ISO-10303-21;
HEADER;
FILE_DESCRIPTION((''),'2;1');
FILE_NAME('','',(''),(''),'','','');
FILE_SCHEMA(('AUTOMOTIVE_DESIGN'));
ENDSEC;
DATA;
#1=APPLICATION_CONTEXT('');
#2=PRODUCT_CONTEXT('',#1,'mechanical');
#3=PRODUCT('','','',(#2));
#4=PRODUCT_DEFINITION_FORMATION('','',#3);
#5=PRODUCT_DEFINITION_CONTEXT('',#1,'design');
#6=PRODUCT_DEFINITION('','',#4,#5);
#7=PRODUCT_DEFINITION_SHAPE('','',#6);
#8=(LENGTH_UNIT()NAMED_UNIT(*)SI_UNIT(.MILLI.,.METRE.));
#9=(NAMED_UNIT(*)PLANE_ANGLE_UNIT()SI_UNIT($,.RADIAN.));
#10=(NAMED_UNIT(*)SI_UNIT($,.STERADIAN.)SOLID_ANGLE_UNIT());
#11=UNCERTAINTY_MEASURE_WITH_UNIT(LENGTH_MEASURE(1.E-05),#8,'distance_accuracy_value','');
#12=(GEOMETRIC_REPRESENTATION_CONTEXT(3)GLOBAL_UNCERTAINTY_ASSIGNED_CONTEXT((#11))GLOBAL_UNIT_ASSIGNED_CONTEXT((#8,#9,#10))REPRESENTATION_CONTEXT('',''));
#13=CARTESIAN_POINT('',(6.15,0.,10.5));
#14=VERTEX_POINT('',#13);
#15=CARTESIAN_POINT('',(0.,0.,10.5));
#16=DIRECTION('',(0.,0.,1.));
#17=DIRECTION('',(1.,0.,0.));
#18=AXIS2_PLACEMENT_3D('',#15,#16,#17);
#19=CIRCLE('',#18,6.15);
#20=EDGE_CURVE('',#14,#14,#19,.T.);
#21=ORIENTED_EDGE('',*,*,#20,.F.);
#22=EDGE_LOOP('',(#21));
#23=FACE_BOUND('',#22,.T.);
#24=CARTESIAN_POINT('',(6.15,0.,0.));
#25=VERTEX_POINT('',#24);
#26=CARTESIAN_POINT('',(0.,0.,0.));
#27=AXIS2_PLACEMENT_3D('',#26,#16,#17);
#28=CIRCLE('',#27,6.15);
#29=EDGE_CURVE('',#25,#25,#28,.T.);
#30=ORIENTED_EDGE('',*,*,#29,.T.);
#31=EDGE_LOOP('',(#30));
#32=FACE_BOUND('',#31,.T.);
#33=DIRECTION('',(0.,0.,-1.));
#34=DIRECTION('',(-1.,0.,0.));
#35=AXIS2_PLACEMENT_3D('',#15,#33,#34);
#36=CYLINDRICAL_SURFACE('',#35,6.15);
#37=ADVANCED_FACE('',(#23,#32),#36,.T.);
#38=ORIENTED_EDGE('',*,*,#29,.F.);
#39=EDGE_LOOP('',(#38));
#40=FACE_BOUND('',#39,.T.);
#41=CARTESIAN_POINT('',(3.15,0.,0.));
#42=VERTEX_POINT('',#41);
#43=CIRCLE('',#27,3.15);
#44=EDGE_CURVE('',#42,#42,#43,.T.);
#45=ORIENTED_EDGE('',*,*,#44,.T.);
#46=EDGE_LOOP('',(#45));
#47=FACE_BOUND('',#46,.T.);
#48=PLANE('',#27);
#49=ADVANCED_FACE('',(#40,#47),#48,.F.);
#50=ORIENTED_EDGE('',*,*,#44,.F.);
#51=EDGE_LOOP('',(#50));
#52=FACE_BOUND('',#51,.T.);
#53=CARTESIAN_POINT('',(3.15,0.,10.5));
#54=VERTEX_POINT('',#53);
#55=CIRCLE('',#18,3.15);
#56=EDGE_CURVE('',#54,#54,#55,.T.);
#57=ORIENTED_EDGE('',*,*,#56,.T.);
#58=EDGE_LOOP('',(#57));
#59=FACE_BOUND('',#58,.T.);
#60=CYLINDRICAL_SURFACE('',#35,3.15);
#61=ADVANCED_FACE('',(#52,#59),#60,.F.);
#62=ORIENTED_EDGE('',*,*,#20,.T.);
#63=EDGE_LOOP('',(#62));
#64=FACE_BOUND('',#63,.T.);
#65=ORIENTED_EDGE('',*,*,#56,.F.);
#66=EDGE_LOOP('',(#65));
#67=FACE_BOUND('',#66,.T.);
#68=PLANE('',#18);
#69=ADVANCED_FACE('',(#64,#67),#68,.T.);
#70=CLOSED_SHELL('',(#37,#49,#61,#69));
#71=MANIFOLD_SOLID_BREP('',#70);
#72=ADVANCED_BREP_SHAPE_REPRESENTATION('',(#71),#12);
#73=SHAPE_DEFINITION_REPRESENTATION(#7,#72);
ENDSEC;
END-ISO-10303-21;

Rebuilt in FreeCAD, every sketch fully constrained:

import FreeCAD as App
import Part
import Sketcher
from FreeCAD import Vector

doc = App.newDocument("Part")
params = doc.addObject("Spreadsheet::Sheet", "Params")
for row, (alias, value) in enumerate([
    ("sketch1_diameter", "12.3 mm"),
    ("sketch1_diameter2", "6.3 mm"),
    ("pad1_length", "10.5 mm"),
], start=1):
    params.set(f"A{row}", alias)
    params.set(f"B{row}", "=" + value)
    params.setAlias(f"B{row}", alias)

body = doc.addObject("PartDesign::Body", "Body")

# Sketch on XY plane
sketch1 = doc.addObject("Sketcher::SketchObject", "Sketch")
body.addObject(sketch1)
sketch1.AttachmentSupport = (doc.XY_Plane, [""])
sketch1.MapMode = "FlatFace"
sketch1.addGeometry([
    Part.Circle(Vector(0, 0, 0), Vector(0, 0, 1), 6.2),
    Part.Circle(Vector(0, 0, 0), Vector(0, 0, 1), 3.1),
], False)
sketch1.addConstraint([
    Sketcher.Constraint("Coincident", 0, 3, -1, 1),
    Sketcher.Constraint("Coincident", 1, 3, -1, 1),
    Sketcher.Constraint("Diameter", 0, 12.3),
    Sketcher.Constraint("Diameter", 1, 6.3),
])
sketch1.setExpression("Constraints[2]", "Params.sketch1_diameter")
sketch1.setExpression("Constraints[3]", "Params.sketch1_diameter2")
pad1 = doc.addObject("PartDesign::Pad", "Pad")
body.addObject(pad1)
pad1.Profile = sketch1
pad1.setExpression("Length", "Params.pad1_length")

doc.recompute()
